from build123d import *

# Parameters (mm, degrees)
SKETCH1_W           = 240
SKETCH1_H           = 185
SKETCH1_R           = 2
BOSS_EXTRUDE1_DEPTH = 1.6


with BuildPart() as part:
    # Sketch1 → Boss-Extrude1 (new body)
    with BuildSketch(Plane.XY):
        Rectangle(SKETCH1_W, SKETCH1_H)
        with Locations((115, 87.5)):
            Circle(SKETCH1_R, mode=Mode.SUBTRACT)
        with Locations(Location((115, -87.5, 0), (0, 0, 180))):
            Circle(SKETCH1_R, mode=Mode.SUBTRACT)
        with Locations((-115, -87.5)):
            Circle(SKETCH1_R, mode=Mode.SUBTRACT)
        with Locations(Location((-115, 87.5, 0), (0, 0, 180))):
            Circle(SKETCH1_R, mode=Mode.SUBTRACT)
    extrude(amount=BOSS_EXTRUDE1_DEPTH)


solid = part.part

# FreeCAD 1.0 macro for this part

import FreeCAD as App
import Part
import Sketcher
from FreeCAD import Vector

doc = App.newDocument("Part")
body = doc.addObject("PartDesign::Body", "Body")

# Sketch on XY plane
sketch1 = body.newObject("Sketcher::SketchObject", "Sketch")
sketch1.AttachmentSupport = (doc.getObject("XY_Plane"), [""])
sketch1.MapMode = "FlatFace"
sketch1.addGeometry(Part.LineSegment(Vector(-120, 92.5, 0), Vector(-120, -92.5, 0)), False)
sketch1.addGeometry(Part.LineSegment(Vector(-120, -92.5, 0), Vector(120, -92.5, 0)), False)
sketch1.addGeometry(Part.LineSegment(Vector(120, -92.5, 0), Vector(120, 92.5, 0)), False)
sketch1.addGeometry(Part.LineSegment(Vector(120, 92.5, 0), Vector(-120, 92.5, 0)), False)
sketch1.addGeometry(Part.Circle(Vector(-115, -87.5, 0), Vector(0, 0, 1), 2), False)
sketch1.addGeometry(Part.Circle(Vector(115, -87.5, 0), Vector(0, 0, 1), 2), False)
sketch1.addGeometry(Part.Circle(Vector(-115, 87.5, 0), Vector(0, 0, 1), 2), False)
sketch1.addGeometry(Part.Circle(Vector(115, 87.5, 0), Vector(0, 0, 1), 2), False)
sketch1.addConstraint(Sketcher.Constraint("Coincident", 0, 2, 1, 1))
sketch1.addConstraint(Sketcher.Constraint("Coincident", 1, 2, 2, 1))
sketch1.addConstraint(Sketcher.Constraint("Coincident", 2, 2, 3, 1))
sketch1.addConstraint(Sketcher.Constraint("Coincident", 3, 2, 0, 1))
sketch1.addConstraint(Sketcher.Constraint("Vertical", 0))
sketch1.addConstraint(Sketcher.Constraint("Horizontal", 1))
sketch1.addConstraint(Sketcher.Constraint("Vertical", 2))
sketch1.addConstraint(Sketcher.Constraint("Horizontal", 3))
sketch1.addConstraint(Sketcher.Constraint("Equal", 4, 5))
sketch1.addConstraint(Sketcher.Constraint("Equal", 5, 6))
sketch1.addConstraint(Sketcher.Constraint("Equal", 6, 7))
sketch1.addConstraint(Sketcher.Constraint("Symmetric", 5, 3, 6, 3, -1, 1))
sketch1.addConstraint(Sketcher.Constraint("Symmetric", 4, 3, 7, 3, -1, 1))
sketch1.addConstraint(Sketcher.Constraint("Symmetric", 0, 2, 2, 2, -1, 1))
sketch1.addConstraint(Sketcher.Constraint("Symmetric", 4, 3, 5, 3, -2))
sketch1.addConstraint(Sketcher.Constraint("Diameter", 4, 4.0))
sketch1.addConstraint(Sketcher.Constraint("DistanceX", 1, 1, 1, 2, 240.0))
sketch1.addConstraint(Sketcher.Constraint("DistanceY", 0, 2, 0, 1, 185.0))
sketch1.addConstraint(Sketcher.Constraint("DistanceX", 4, 3, -1, 1, 115.0))
sketch1.addConstraint(Sketcher.Constraint("DistanceY", 4, 3, 6, 3, 175.0))
pad1 = body.newObject("PartDesign::Pad", "Pad")
pad1.Profile = sketch1
pad1.Length = 1.6

doc.recompute()
